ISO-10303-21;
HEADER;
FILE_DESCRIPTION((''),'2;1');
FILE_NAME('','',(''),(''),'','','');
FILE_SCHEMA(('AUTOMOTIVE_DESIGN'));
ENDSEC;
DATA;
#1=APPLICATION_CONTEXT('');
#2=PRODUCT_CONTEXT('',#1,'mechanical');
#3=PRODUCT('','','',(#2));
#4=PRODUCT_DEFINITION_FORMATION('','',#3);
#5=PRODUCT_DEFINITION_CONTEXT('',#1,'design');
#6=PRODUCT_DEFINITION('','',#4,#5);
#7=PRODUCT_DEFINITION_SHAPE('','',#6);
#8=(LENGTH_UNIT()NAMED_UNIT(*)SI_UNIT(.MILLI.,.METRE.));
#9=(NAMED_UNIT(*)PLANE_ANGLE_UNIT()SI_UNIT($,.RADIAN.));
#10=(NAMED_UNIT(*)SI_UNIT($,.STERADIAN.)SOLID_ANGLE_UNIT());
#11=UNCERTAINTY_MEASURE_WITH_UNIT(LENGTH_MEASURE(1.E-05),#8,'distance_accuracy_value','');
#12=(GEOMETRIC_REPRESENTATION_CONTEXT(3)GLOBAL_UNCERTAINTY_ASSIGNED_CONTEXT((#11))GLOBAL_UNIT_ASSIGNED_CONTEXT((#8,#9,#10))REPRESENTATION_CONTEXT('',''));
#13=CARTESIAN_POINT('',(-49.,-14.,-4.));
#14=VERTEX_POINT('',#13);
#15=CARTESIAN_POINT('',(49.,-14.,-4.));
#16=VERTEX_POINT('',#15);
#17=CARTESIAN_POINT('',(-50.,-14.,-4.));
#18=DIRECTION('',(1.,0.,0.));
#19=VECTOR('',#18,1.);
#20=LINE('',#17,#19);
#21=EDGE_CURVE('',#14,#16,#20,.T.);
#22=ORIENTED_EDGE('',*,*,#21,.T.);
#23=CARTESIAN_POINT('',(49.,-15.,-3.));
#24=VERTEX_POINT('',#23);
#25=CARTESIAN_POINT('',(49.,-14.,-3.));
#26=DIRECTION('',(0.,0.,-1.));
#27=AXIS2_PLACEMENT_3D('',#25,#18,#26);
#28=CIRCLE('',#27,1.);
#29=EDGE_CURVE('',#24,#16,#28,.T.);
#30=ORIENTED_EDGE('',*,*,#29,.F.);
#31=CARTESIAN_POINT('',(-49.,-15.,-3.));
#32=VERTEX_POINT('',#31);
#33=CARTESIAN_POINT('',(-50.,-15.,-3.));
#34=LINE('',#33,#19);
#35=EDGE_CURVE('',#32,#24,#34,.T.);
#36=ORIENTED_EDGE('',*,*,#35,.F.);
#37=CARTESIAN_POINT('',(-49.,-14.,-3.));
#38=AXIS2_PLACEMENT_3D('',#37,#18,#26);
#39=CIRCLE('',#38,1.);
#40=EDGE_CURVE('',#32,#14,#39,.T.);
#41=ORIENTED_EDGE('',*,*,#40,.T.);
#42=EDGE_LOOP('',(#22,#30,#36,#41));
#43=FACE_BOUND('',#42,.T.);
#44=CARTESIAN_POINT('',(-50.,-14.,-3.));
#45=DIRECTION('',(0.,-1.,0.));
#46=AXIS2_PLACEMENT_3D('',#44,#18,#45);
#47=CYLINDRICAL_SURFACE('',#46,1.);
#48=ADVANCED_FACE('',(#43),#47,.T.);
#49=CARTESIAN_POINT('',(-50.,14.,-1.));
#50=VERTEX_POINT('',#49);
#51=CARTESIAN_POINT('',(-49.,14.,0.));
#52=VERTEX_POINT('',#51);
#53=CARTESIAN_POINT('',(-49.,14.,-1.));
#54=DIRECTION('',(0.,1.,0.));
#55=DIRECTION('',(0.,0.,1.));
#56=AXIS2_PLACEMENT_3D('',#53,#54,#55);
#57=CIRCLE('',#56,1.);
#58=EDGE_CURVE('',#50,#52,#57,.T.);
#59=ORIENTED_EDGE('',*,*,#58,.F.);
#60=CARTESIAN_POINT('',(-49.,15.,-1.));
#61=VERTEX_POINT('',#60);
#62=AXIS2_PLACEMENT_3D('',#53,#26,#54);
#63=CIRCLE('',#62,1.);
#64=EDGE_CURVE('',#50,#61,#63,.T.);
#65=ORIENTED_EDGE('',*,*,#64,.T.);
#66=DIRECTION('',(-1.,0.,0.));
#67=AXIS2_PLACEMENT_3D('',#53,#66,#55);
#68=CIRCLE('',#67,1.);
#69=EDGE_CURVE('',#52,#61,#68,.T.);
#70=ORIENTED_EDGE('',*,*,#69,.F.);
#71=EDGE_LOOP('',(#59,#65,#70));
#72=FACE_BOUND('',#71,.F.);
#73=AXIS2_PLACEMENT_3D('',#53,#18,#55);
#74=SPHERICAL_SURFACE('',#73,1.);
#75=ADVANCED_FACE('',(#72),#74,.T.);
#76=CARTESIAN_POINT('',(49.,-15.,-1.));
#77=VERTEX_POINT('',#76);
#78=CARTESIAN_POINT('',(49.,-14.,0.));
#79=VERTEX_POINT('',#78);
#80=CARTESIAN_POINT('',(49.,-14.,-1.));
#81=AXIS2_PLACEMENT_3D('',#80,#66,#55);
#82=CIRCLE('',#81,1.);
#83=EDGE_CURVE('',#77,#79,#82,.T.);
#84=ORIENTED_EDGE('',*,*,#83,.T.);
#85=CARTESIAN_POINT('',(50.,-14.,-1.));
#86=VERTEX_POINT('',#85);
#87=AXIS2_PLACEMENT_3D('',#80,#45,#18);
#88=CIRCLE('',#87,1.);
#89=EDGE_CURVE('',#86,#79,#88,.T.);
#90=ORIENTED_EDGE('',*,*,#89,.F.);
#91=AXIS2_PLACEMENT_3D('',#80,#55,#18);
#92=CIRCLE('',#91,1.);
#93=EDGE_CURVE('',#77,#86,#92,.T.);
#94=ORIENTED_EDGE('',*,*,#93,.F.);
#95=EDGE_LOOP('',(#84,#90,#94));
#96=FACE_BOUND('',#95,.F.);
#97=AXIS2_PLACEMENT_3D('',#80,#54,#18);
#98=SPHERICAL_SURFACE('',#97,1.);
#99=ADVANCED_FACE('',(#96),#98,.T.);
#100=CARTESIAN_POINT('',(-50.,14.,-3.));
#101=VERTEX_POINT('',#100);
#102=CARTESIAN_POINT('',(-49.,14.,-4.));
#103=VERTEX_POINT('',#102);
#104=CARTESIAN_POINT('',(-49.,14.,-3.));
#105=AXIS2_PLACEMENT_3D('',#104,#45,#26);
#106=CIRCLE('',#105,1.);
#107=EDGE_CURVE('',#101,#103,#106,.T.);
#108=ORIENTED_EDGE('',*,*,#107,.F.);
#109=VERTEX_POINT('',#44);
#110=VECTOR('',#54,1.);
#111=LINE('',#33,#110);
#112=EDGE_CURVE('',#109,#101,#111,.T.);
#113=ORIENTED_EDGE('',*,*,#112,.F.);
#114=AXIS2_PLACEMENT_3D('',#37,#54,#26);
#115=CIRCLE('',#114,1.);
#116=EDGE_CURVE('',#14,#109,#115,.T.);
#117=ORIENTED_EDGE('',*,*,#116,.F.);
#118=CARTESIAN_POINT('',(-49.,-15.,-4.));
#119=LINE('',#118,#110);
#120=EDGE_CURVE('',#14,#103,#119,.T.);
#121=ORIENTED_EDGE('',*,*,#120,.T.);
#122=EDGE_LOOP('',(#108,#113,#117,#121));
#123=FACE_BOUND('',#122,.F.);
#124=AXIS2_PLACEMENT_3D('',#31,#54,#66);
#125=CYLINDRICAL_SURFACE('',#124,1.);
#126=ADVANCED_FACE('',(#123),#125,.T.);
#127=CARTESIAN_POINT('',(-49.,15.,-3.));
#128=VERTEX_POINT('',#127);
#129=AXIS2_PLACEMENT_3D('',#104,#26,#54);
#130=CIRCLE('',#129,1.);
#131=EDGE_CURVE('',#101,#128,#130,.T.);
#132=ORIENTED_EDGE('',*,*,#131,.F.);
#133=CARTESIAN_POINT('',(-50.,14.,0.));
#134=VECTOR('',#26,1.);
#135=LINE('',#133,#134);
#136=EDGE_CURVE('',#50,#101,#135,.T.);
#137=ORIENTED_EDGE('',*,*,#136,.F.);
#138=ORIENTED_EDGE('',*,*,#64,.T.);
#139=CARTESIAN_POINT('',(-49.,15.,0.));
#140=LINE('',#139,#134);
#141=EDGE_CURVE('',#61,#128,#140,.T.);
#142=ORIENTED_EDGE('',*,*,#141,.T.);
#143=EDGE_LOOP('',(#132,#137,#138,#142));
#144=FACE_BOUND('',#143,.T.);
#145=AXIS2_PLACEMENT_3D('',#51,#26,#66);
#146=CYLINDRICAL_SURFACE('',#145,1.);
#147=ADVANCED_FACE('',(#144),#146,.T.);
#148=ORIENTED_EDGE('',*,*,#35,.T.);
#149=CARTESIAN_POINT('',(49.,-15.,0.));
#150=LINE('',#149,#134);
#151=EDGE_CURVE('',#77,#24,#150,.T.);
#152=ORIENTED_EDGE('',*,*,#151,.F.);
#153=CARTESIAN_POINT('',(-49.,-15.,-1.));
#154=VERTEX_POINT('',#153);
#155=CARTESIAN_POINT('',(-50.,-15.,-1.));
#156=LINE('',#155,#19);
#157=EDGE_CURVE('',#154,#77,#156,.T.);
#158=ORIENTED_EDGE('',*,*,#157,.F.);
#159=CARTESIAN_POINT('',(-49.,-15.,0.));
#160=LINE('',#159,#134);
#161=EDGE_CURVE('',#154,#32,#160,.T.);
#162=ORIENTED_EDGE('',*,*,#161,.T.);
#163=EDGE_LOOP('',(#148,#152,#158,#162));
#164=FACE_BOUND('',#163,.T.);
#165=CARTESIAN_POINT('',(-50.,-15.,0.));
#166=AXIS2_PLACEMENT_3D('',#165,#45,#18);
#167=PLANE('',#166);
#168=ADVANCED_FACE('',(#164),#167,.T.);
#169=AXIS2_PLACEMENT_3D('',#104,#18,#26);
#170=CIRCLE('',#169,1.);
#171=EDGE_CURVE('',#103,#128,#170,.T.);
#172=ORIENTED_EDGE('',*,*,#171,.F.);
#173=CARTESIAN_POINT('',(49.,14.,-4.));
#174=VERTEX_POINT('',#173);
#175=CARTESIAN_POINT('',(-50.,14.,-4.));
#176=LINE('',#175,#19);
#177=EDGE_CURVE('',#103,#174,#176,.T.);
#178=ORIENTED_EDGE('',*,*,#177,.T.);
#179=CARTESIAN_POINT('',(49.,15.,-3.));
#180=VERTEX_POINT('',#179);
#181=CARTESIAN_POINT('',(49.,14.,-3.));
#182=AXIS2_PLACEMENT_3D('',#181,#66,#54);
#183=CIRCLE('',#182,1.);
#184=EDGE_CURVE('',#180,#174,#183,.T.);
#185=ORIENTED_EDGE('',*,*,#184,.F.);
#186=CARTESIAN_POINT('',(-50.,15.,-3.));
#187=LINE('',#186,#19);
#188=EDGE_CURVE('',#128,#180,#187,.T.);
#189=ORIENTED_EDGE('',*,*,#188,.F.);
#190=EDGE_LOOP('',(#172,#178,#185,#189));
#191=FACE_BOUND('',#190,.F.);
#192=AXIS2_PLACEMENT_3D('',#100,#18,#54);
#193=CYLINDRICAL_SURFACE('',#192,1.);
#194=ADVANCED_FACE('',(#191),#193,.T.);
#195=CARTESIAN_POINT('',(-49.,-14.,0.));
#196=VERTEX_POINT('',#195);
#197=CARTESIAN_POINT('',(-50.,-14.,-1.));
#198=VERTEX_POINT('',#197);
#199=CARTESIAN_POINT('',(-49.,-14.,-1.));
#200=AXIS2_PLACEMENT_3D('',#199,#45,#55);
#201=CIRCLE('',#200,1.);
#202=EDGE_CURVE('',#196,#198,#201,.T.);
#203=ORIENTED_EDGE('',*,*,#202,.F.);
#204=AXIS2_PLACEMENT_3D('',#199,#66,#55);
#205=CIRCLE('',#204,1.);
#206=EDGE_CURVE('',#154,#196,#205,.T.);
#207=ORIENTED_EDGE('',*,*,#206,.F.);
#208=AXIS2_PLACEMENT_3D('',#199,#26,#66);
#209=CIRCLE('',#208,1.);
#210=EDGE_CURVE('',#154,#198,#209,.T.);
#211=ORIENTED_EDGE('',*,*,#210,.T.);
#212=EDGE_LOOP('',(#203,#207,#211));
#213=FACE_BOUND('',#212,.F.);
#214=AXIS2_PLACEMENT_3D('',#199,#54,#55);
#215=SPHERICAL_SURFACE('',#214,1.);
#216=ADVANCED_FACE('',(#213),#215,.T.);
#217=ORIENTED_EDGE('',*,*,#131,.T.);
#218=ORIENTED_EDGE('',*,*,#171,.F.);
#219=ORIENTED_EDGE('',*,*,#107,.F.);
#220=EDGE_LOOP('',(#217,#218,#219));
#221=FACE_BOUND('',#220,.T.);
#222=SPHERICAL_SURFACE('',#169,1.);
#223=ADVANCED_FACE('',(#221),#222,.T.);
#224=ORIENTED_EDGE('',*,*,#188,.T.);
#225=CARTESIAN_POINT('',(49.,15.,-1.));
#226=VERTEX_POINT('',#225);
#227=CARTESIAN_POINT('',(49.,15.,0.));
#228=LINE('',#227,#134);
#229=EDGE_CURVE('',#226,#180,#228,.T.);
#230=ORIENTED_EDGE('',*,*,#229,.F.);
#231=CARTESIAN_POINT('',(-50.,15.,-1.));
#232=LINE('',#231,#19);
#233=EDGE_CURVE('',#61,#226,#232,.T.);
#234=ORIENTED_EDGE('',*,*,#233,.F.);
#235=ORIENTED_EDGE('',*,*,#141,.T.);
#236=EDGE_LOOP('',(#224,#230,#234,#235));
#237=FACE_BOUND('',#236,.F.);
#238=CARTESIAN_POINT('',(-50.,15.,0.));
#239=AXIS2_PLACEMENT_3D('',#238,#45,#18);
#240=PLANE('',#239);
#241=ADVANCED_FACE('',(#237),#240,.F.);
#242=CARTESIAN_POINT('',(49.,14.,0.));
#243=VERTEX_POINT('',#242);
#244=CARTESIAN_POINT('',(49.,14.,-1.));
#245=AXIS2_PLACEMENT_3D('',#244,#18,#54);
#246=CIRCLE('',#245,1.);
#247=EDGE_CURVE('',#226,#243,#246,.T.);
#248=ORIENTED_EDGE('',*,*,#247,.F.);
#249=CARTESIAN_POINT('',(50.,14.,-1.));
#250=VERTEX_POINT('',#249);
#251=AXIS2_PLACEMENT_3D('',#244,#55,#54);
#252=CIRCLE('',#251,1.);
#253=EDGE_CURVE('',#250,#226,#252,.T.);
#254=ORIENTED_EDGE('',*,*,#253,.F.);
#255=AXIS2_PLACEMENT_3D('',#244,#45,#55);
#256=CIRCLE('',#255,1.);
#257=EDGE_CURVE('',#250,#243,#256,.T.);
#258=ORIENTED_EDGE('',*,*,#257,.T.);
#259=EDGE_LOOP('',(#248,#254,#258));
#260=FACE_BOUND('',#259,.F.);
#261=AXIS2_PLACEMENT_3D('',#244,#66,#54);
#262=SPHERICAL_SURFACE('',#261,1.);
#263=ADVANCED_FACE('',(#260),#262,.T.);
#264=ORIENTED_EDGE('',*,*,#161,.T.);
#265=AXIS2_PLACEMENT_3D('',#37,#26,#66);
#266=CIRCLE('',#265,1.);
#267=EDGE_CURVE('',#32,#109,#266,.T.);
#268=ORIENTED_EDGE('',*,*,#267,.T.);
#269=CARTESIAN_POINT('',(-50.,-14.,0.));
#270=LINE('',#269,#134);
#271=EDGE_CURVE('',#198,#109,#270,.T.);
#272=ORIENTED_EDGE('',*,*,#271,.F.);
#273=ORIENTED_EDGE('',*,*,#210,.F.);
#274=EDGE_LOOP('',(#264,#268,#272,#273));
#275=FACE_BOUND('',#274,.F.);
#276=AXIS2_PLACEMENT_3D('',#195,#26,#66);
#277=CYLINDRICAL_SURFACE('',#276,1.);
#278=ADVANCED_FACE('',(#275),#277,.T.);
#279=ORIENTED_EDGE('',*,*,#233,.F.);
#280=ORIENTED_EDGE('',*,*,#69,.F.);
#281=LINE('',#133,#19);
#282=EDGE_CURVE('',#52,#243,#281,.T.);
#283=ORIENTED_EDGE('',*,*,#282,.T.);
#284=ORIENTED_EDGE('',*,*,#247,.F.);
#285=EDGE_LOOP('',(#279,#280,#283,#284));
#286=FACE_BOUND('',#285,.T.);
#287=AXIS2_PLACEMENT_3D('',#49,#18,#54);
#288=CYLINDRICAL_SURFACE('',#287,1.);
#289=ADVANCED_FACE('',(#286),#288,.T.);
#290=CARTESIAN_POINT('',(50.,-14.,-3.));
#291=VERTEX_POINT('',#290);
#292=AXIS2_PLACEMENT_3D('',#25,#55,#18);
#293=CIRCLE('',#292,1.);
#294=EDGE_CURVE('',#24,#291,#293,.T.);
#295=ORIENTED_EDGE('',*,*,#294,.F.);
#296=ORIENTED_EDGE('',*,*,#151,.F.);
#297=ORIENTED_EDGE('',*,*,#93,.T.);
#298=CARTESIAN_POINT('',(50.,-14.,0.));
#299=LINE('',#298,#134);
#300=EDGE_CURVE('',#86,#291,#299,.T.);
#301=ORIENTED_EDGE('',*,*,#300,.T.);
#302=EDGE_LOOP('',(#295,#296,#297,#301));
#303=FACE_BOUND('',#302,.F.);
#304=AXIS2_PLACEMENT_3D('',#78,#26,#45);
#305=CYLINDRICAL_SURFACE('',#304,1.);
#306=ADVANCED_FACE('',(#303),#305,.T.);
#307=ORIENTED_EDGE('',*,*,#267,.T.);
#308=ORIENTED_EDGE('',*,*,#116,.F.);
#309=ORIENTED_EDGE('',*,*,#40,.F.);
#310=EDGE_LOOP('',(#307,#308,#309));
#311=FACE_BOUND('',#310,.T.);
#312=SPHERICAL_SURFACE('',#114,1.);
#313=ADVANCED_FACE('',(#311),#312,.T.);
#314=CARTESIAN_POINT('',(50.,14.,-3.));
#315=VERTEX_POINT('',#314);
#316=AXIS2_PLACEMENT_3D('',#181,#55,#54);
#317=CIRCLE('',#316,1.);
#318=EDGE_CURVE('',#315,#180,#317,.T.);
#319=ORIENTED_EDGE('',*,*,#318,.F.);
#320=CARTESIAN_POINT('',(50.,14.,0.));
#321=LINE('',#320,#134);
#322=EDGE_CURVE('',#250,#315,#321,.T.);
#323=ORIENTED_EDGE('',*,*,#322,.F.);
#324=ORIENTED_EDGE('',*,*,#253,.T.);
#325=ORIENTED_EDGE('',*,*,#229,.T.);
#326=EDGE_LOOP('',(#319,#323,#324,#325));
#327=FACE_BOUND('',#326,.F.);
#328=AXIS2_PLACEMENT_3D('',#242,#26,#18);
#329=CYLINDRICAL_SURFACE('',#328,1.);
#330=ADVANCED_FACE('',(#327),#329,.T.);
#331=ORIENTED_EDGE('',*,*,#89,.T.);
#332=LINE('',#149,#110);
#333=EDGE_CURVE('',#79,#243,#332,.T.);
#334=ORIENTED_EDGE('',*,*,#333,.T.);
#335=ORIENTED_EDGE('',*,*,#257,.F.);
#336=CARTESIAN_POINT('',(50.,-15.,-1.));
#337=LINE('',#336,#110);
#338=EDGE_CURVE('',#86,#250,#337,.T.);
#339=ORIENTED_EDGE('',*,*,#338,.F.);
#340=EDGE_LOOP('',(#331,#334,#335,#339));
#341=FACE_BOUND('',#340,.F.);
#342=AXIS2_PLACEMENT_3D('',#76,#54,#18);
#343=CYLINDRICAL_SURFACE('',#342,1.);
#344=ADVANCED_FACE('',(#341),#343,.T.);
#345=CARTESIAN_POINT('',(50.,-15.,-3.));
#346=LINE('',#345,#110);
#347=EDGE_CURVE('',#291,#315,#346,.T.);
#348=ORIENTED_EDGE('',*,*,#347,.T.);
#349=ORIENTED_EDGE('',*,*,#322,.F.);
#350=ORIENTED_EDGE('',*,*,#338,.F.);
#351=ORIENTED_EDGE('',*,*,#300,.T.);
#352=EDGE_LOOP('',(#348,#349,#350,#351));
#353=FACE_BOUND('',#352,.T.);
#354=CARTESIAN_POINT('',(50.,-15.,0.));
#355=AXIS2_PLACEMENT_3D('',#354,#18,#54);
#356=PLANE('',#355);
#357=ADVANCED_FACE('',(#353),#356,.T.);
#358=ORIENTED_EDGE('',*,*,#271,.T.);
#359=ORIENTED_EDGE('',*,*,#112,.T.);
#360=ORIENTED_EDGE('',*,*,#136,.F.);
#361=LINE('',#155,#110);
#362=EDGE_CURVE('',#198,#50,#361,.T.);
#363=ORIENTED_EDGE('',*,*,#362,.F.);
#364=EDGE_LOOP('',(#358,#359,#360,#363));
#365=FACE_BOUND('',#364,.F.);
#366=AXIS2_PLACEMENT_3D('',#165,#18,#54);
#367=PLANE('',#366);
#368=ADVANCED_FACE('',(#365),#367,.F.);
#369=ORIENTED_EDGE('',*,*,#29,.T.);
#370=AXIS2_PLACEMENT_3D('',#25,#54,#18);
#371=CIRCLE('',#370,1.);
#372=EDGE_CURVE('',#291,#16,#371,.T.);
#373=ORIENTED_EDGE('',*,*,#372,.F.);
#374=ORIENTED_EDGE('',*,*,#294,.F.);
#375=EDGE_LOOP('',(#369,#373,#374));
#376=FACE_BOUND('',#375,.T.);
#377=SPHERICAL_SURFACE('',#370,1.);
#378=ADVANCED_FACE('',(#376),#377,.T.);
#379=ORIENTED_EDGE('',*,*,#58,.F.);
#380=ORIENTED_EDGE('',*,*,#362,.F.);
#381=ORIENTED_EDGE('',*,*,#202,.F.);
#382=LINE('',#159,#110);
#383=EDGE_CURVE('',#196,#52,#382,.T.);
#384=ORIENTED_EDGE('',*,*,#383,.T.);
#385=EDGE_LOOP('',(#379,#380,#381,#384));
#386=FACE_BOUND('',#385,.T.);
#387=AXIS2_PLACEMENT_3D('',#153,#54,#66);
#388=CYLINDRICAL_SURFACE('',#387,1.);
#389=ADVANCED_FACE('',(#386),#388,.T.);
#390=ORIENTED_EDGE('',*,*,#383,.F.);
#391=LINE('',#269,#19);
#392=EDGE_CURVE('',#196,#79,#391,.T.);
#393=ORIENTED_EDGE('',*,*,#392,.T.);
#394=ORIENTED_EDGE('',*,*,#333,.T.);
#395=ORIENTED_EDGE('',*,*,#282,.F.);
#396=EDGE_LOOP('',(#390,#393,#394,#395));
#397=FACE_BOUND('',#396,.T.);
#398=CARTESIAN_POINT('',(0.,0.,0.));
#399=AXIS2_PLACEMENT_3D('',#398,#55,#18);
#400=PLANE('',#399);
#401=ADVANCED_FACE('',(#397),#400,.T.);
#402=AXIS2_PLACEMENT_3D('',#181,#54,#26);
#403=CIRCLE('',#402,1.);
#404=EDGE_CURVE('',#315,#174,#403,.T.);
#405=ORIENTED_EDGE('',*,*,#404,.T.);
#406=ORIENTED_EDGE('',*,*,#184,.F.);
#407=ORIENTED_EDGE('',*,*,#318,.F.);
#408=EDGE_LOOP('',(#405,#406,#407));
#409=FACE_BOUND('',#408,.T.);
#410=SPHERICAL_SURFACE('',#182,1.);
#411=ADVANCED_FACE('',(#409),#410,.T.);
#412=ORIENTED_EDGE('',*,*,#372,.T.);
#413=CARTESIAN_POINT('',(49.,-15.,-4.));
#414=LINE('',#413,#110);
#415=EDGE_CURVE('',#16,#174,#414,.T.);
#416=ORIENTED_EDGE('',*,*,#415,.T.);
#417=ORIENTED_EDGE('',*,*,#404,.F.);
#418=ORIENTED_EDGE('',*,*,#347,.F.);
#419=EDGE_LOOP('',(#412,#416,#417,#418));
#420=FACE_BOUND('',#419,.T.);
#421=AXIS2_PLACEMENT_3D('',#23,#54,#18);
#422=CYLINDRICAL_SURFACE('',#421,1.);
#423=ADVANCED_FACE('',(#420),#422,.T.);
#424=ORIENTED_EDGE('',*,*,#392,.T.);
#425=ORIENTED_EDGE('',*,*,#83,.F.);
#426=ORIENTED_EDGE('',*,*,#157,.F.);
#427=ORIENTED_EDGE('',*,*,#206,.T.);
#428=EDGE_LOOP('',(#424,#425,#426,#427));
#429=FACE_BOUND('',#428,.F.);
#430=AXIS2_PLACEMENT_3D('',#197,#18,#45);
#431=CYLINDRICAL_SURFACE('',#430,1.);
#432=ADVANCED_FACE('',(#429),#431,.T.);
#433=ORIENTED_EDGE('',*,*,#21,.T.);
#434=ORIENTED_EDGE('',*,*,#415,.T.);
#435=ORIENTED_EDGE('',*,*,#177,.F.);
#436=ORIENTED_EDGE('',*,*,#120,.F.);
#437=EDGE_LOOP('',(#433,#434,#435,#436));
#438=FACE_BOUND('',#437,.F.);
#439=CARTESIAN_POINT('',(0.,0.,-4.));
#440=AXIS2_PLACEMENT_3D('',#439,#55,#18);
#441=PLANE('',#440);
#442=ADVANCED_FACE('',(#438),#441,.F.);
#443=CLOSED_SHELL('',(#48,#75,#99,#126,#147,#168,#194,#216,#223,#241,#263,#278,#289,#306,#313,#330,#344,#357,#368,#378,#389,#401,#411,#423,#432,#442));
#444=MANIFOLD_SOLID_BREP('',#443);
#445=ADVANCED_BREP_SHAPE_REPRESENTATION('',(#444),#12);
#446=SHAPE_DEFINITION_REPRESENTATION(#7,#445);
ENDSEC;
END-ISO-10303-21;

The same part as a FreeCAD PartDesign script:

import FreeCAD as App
import Part
import Sketcher


def add_polygon(sketch, points):
    """Adds a closed chain of lines whose ends are joined by coincident constraints."""
    first, n = sketch.GeometryCount, len(points)
    for a, b in zip(points, points[1:] + points[:1]):
        sketch.addGeometry(Part.LineSegment(App.Vector(*a, 0), App.Vector(*b, 0)), False)
    for i in range(n):
        sketch.addConstraint(Sketcher.Constraint("Coincident", first + i, 2, first + (i + 1) % n, 1))

doc = App.newDocument("Part")
params = doc.addObject("Spreadsheet::Sheet", "Params")
for row, (alias, value) in enumerate([
    ("sketch1_width", "100 mm"),
    ("sketch1_height", "30 mm"),
    ("pad1_length", "4 mm"),
    ("fillet_radius", "1 mm"),
], start=1):
    params.set(f"A{row}", alias)
    params.set(f"B{row}", "=" + value)
    params.setAlias(f"B{row}", alias)

body = doc.addObject("PartDesign::Body", "Body")

# Sketch on XY plane
sketch1 = doc.addObject("Sketcher::SketchObject", "Sketch")
body.addObject(sketch1)
sketch1.AttachmentSupport = (doc.XY_Plane, [""])
sketch1.MapMode = "FlatFace"
add_polygon(sketch1, [(-50, 15), (-50, -15), (50, -15), (50, 15)])  # lines 0-3
sketch1.addConstraint([
    Sketcher.Constraint("Vertical", 0),
    Sketcher.Constraint("Horizontal", 1),
    Sketcher.Constraint("Vertical", 2),
    Sketcher.Constraint("Horizontal", 3),
    Sketcher.Constraint("Symmetric", 0, 2, 2, 2, -1, 1),
    Sketcher.Constraint("DistanceX", 1, 1, 1, 2, 100.0),
    Sketcher.Constraint("DistanceY", 0, 2, 0, 1, 30.0),
])
sketch1.setExpression("Constraints[9]", "Params.sketch1_width")
sketch1.setExpression("Constraints[10]", "Params.sketch1_height")
pad1 = doc.addObject("PartDesign::Pad", "Pad")
body.addObject(pad1)
pad1.Profile = sketch1
pad1.setExpression("Length", "Params.pad1_length")
pad1.Reversed = True
doc.recompute()

fillet = doc.addObject("PartDesign::Fillet", "Fillet")
body.addObject(fillet)
fillet.Base = (pad1, ["Edge1"])
fillet.UseAllEdges = True
fillet.setExpression("Radius", "Params.fillet_radius")

doc.recompute()
